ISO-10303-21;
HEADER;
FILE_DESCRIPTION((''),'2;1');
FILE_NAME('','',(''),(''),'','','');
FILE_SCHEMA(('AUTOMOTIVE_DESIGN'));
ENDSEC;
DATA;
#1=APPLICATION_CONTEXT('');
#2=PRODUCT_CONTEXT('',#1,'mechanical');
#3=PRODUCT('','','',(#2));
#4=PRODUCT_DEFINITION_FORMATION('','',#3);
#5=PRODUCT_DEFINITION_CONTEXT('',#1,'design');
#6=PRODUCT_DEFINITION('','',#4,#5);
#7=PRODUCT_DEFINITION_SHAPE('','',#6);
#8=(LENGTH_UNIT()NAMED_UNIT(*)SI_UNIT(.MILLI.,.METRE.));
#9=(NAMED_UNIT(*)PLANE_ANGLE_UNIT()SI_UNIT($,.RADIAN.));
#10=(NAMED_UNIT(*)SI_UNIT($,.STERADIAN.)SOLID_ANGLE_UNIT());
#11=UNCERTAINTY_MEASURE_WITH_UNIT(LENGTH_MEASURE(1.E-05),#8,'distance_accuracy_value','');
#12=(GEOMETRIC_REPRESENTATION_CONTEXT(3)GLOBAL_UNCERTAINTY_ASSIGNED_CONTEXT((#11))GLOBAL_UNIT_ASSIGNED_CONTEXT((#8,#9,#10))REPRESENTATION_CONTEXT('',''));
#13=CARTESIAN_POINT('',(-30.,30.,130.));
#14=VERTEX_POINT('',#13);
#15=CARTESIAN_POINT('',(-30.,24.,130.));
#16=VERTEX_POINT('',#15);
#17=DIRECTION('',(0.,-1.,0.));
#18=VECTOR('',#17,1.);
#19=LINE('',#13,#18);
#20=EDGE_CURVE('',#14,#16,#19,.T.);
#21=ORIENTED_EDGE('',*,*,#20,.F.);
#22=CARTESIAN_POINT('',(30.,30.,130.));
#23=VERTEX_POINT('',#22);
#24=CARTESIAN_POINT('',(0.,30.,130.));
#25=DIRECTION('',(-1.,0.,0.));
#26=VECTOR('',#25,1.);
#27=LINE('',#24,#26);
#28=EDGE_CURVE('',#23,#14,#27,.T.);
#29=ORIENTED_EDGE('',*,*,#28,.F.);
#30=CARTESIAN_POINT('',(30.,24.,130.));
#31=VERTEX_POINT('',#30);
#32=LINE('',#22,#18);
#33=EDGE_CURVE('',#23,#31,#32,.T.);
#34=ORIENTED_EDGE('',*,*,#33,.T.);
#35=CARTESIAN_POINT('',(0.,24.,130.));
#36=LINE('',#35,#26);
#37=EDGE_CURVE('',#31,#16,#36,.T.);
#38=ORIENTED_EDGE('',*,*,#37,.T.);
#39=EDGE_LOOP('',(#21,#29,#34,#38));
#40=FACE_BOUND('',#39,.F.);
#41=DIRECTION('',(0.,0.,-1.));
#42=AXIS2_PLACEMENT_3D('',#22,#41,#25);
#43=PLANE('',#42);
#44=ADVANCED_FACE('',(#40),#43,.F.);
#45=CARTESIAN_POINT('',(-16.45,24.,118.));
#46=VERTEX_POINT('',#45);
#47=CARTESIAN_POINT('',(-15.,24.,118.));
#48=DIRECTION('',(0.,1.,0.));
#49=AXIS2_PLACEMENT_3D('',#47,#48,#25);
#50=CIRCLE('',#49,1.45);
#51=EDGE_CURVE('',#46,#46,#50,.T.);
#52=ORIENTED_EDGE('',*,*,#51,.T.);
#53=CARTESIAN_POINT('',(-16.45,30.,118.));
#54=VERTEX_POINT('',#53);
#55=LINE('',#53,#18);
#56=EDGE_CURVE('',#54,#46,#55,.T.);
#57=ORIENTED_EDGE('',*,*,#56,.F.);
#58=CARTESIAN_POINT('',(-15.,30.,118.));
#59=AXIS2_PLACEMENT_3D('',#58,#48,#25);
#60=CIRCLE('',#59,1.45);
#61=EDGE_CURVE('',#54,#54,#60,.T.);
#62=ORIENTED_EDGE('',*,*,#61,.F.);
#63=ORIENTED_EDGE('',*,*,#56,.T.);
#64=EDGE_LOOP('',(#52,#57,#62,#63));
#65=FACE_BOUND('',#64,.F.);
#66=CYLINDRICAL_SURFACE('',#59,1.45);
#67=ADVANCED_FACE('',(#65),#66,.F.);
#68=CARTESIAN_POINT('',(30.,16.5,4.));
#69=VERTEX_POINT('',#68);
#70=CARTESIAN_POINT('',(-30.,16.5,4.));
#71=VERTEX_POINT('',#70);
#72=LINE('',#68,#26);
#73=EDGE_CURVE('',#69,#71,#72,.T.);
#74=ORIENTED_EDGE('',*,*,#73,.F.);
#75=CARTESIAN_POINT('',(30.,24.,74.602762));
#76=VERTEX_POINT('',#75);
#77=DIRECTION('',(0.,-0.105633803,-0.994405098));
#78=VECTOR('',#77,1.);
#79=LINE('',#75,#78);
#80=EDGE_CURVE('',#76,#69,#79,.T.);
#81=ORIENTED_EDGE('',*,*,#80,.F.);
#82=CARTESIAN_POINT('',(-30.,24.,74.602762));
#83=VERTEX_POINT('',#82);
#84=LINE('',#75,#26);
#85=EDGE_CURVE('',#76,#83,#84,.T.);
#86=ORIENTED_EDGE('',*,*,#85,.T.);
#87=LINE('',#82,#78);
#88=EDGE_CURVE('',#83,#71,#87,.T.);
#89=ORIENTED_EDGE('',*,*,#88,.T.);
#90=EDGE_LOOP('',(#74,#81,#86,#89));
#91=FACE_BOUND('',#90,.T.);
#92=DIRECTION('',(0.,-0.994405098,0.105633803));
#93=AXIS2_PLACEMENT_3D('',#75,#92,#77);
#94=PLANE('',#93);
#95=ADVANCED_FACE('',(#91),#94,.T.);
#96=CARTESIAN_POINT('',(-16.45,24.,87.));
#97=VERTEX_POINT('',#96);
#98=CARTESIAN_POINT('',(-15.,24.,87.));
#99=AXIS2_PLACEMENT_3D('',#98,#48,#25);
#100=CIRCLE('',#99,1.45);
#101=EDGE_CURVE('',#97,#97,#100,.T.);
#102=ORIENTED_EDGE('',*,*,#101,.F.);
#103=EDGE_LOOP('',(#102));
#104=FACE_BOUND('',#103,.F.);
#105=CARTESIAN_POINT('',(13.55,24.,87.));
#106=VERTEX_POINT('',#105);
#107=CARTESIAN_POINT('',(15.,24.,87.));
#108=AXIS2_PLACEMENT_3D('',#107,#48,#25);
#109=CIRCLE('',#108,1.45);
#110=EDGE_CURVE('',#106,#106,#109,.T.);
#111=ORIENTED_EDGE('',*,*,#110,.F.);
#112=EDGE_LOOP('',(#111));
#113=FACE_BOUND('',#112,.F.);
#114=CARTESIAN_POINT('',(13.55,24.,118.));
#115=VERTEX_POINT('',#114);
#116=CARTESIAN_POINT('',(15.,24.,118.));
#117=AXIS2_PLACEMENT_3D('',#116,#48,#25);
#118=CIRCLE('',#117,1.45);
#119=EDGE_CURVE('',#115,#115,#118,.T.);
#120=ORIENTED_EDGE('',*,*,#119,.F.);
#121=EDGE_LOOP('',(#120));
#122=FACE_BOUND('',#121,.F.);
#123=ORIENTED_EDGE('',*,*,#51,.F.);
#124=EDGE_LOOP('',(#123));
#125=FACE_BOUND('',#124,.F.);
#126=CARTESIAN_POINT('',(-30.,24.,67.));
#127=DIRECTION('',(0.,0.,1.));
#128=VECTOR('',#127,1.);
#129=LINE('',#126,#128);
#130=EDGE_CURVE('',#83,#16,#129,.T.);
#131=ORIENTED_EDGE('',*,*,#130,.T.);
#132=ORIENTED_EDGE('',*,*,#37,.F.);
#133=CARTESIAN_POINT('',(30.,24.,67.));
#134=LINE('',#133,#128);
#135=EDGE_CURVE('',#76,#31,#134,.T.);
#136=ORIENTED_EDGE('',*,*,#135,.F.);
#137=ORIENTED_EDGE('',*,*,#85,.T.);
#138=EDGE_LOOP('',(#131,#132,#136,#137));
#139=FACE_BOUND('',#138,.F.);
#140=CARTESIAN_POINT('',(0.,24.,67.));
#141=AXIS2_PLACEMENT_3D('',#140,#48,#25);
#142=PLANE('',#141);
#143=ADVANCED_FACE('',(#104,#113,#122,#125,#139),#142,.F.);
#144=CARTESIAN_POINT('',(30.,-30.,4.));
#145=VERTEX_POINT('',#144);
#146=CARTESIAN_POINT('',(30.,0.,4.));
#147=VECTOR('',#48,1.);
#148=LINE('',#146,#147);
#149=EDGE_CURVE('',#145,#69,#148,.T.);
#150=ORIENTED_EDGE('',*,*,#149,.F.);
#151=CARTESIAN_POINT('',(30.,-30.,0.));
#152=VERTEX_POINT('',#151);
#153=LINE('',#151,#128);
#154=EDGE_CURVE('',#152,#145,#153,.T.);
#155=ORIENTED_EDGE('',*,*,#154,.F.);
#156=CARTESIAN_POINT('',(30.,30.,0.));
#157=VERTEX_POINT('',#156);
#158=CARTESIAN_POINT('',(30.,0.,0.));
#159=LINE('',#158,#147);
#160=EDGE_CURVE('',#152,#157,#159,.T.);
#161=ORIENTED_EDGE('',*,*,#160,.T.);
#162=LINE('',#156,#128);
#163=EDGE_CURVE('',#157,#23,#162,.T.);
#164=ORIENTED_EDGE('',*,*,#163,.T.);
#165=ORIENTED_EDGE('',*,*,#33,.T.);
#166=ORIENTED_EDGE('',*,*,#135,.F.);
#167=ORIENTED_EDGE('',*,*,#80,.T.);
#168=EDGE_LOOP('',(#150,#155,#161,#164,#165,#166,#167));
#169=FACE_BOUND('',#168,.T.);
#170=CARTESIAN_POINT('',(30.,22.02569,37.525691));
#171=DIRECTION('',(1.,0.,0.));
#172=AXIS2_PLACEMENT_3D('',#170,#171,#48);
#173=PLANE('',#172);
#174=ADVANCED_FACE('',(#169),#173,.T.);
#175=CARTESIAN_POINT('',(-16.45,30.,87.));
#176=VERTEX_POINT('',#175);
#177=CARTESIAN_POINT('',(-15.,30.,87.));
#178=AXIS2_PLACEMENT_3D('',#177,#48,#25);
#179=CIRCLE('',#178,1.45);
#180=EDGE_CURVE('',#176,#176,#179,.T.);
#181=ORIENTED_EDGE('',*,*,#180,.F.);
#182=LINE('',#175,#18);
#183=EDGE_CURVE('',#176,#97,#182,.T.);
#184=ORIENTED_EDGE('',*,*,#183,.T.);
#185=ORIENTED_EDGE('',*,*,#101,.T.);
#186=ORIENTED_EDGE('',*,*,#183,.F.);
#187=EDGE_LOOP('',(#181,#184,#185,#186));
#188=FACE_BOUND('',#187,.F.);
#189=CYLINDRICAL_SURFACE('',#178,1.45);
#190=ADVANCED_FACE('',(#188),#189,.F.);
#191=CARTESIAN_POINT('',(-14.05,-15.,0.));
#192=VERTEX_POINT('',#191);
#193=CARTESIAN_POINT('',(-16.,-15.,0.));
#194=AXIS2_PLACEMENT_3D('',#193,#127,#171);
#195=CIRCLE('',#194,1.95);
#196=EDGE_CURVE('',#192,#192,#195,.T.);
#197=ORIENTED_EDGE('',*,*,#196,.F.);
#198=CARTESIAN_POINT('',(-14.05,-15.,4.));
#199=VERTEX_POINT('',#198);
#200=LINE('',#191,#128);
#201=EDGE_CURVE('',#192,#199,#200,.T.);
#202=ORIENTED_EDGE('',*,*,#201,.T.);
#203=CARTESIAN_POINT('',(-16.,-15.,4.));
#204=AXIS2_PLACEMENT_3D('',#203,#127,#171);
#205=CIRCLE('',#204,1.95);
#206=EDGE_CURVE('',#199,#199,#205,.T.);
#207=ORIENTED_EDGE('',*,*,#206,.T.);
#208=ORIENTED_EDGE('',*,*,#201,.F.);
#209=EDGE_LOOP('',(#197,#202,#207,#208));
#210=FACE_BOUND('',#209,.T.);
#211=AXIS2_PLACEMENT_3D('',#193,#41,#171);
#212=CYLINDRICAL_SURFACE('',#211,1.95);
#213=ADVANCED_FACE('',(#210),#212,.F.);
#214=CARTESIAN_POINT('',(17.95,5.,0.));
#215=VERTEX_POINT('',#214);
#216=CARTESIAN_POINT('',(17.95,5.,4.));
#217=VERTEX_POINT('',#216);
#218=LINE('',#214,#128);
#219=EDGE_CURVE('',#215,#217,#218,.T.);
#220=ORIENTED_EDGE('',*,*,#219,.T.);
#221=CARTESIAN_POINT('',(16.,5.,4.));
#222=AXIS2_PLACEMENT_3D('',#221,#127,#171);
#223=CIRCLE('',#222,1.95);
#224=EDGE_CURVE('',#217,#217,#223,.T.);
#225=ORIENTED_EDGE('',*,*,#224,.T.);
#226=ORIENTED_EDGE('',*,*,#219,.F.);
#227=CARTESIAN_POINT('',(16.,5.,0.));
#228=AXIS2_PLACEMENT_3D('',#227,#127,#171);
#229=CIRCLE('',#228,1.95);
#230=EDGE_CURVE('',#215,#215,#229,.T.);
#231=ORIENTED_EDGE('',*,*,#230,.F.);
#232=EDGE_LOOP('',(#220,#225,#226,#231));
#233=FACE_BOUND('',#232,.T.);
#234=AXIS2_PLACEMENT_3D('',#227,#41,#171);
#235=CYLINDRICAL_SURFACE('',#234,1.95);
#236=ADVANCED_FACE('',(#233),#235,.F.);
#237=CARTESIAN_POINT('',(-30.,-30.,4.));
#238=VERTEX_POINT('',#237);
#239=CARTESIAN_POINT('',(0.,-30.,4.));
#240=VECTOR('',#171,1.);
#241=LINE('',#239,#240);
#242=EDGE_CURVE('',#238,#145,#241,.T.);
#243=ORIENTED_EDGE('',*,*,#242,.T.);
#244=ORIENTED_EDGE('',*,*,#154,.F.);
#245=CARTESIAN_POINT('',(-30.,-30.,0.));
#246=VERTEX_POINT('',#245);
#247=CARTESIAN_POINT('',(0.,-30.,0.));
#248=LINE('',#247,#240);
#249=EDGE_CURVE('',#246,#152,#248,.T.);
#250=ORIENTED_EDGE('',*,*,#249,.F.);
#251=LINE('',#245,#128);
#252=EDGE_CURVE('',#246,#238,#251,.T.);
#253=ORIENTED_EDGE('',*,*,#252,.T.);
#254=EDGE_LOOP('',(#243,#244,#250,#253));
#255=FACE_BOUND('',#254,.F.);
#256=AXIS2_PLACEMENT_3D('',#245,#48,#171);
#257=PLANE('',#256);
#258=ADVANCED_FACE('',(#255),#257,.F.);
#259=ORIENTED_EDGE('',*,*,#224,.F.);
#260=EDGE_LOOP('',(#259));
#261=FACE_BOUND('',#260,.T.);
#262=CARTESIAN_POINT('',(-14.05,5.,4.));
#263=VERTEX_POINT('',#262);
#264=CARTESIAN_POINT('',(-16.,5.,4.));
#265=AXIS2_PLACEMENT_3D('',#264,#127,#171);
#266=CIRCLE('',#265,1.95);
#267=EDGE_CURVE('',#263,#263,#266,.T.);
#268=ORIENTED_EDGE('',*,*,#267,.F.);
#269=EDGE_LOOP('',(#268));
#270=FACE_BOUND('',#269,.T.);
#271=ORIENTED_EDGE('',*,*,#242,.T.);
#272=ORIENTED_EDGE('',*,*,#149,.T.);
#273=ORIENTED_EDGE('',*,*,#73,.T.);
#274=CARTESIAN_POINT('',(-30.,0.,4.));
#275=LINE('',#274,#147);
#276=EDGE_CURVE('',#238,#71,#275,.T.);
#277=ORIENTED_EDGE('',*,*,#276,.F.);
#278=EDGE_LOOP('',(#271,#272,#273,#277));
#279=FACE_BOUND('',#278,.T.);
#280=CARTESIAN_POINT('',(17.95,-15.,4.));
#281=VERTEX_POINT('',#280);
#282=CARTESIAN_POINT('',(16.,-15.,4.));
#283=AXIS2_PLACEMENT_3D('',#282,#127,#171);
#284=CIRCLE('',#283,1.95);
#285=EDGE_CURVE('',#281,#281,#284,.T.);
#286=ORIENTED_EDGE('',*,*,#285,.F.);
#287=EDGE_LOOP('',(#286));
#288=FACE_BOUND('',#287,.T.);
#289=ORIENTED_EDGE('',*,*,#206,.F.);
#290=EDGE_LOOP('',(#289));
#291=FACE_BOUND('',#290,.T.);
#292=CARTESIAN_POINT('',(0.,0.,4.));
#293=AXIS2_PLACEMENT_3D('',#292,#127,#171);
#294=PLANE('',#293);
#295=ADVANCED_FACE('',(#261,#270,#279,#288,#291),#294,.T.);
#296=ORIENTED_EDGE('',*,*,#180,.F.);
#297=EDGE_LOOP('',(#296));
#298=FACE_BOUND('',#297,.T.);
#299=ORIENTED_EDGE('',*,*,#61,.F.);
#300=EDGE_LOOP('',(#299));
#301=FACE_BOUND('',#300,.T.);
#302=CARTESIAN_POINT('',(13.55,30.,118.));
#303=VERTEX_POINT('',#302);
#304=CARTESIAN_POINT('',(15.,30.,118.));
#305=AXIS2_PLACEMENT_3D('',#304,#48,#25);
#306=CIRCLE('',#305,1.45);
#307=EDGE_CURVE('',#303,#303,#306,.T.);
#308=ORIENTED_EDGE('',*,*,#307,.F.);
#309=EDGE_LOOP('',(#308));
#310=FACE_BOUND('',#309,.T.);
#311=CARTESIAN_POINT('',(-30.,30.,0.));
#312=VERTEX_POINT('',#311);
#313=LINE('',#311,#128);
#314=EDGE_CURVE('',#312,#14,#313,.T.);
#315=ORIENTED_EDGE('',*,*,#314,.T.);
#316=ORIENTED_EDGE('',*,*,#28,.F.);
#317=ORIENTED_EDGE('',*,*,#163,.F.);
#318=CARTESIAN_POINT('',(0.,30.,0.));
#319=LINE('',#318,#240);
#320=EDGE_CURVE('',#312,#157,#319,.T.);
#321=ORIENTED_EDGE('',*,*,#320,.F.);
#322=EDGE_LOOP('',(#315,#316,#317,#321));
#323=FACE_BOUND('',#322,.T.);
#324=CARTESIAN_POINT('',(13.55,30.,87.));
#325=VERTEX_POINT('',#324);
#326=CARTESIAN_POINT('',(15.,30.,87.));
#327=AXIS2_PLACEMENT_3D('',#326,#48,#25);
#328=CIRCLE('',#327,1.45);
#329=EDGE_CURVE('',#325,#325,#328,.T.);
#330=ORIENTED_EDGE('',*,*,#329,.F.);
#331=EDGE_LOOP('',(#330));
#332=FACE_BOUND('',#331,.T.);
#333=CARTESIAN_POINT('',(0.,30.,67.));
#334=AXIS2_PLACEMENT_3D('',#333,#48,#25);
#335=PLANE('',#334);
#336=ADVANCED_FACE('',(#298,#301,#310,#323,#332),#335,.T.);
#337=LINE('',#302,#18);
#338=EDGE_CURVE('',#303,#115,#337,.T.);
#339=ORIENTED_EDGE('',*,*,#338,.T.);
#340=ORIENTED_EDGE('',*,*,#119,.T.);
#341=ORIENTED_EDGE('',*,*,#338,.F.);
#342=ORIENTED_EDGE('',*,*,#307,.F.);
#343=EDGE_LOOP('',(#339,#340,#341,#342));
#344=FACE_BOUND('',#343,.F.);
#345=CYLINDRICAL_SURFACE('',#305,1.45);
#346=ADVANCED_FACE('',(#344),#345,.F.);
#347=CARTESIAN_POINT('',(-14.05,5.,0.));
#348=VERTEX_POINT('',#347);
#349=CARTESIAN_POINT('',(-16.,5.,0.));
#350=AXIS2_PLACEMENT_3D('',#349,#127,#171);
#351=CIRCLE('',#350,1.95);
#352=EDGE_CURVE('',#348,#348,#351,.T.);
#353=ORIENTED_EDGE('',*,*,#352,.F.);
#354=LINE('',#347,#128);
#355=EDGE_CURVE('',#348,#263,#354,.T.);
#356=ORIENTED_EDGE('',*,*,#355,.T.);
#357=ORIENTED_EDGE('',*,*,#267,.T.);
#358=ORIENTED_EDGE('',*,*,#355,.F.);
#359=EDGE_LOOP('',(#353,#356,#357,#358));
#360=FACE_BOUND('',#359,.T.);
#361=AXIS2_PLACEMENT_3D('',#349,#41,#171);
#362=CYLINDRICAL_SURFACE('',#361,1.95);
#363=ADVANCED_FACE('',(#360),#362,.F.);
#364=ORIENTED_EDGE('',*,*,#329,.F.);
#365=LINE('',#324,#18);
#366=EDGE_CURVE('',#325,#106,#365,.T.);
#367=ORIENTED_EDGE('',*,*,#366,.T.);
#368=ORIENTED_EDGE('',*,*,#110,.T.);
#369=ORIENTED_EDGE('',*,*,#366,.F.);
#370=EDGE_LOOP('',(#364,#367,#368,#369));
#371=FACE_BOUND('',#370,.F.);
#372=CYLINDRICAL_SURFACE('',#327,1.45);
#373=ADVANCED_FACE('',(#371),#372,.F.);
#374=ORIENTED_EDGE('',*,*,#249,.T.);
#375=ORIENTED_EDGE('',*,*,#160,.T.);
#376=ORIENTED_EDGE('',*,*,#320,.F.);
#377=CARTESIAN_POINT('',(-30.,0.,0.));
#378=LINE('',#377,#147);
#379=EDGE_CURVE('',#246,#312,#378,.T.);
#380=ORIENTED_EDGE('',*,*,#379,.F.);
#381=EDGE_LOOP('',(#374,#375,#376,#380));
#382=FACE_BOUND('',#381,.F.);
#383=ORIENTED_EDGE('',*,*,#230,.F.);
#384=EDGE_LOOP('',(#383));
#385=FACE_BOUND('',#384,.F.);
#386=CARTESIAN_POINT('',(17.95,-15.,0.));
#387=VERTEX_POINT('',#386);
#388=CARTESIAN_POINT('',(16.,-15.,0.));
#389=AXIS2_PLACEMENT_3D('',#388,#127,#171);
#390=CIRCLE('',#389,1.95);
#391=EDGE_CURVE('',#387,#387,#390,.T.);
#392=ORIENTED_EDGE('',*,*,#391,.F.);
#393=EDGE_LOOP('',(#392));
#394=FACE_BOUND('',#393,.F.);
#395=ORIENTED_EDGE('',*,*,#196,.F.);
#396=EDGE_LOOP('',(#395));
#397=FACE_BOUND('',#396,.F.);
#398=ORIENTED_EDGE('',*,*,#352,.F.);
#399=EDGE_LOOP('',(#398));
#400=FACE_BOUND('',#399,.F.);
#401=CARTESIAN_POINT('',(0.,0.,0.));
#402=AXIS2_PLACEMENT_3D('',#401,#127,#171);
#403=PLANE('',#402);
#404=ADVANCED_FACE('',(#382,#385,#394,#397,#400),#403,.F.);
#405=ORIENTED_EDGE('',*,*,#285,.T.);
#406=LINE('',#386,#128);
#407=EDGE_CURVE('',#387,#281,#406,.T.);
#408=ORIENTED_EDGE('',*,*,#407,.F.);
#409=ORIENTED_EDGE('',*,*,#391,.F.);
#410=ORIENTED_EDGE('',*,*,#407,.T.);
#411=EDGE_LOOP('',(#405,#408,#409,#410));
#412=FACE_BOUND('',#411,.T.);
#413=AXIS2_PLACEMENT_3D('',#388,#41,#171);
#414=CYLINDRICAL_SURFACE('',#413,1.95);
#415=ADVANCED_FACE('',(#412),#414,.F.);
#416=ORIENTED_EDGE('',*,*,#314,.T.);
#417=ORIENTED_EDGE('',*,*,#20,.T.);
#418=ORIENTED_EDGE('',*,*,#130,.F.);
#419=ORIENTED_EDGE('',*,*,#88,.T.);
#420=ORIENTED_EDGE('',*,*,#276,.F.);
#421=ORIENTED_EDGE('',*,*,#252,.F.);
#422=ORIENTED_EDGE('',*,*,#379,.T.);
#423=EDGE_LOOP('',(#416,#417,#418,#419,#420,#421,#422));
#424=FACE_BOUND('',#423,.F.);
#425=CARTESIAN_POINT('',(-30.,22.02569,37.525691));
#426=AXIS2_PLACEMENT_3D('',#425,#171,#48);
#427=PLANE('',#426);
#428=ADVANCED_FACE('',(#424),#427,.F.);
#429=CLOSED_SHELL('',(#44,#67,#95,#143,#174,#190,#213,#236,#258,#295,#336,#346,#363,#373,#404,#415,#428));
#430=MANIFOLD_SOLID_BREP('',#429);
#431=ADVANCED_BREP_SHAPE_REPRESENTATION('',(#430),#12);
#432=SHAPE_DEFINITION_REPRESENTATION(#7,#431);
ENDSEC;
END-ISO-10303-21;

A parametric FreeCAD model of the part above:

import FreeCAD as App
import Part
import Sketcher

V = App.Vector


def add_polygon(sketch, points):
    """Adds a closed chain of lines whose ends are joined by coincident constraints."""
    first, n = sketch.GeometryCount, len(points)
    for a, b in zip(points, points[1:] + points[:1]):
        sketch.addGeometry(Part.LineSegment(App.Vector(*a, 0), App.Vector(*b, 0)), False)
    for i in range(n):
        sketch.addConstraint(Sketcher.Constraint("Coincident", first + i, 2, first + (i + 1) % n, 1))

doc = App.newDocument("Part")
body = doc.addObject("PartDesign::Body", "Body")

sketch1 = body.newObject("Sketcher::SketchObject", "Sketch")
sketch1.AttachmentSupport = (doc.getObject("XY_Plane"), [""])
sketch1.MapMode = "FlatFace"
add_polygon(sketch1, [(-30, 30), (-30, -30), (30, -30), (30, 30)])
sketch1.addGeometry(Part.Circle(V(-16, -15, 0), V(0, 0, 1), 1.9), False)
sketch1.addGeometry(Part.Circle(V(16, -15, 0), V(0, 0, 1), 1.9), False)
sketch1.addGeometry(Part.Circle(V(-16, 5, 0), V(0, 0, 1), 1.9), False)
sketch1.addGeometry(Part.Circle(V(16, 5, 0), V(0, 0, 1), 1.9), False)
sketch1.addConstraint(Sketcher.Constraint("Vertical", 0))
sketch1.addConstraint(Sketcher.Constraint("Horizontal", 1))
sketch1.addConstraint(Sketcher.Constraint("Vertical", 2))
sketch1.addConstraint(Sketcher.Constraint("Horizontal", 3))
sketch1.addConstraint(Sketcher.Constraint("Equal", 4, 5))
sketch1.addConstraint(Sketcher.Constraint("Equal", 5, 6))
sketch1.addConstraint(Sketcher.Constraint("Equal", 6, 7))
sketch1.addConstraint(Sketcher.Constraint("Symmetric", 0, 2, 2, 2, -1, 1))
sketch1.addConstraint(Sketcher.Constraint("Symmetric", 4, 3, 5, 3, -2))
sketch1.addConstraint(Sketcher.Constraint("Symmetric", 6, 3, 7, 3, -2))
sketch1.addConstraint(Sketcher.Constraint("Vertical", 4, 3, 6, 3))
sketch1.addConstraint(Sketcher.Constraint("Equal", 3, 0))
sketch1.addConstraint(Sketcher.Constraint("Diameter", 4, 3.9))
sketch1.addConstraint(Sketcher.Constraint("DistanceX", 1, 1, 1, 2, 60.0))
sketch1.addConstraint(Sketcher.Constraint("DistanceX", 4, 3, -1, 1, 16.0))
sketch1.addConstraint(Sketcher.Constraint("DistanceY", 4, 3, -1, 1, 15.0))
sketch1.addConstraint(Sketcher.Constraint("DistanceY", -1, 1, 6, 3, 5.0))
pad1 = body.newObject("PartDesign::Pad", "Pad")
pad1.Profile = sketch1
pad1.Length = 4

sketch2 = body.newObject("Sketcher::SketchObject", "Sketch001")
sketch2.AttachmentSupport = (doc.getObject("XZ_Plane"), [""])
sketch2.MapMode = "FlatFace"
sketch2.AttachmentOffset = App.Placement(V(0, 0, -30), App.Rotation())
add_polygon(sketch2, [(30, 130), (30, 4), (-30, 4), (-30, 130)])
sketch2.addGeometry(Part.Circle(V(15, 87, 0), V(0, 0, 1), 1.4), False)
sketch2.addGeometry(Part.Circle(V(-15, 87, 0), V(0, 0, 1), 1.4), False)
sketch2.addGeometry(Part.Circle(V(15, 118, 0), V(0, 0, 1), 1.4), False)
sketch2.addGeometry(Part.Circle(V(-15, 118, 0), V(0, 0, 1), 1.4), False)
sketch2.addConstraint(Sketcher.Constraint("Vertical", 0))
sketch2.addConstraint(Sketcher.Constraint("Horizontal", 1))
sketch2.addConstraint(Sketcher.Constraint("Vertical", 2))
sketch2.addConstraint(Sketcher.Constraint("Horizontal", 3))
sketch2.addConstraint(Sketcher.Constraint("Equal", 4, 5))
sketch2.addConstraint(Sketcher.Constraint("Equal", 5, 6))
sketch2.addConstraint(Sketcher.Constraint("Equal", 6, 7))
sketch2.addConstraint(Sketcher.Constraint("Symmetric", 4, 3, 5, 3, -2))
sketch2.addConstraint(Sketcher.Constraint("Symmetric", 6, 3, 7, 3, -2))
sketch2.addConstraint(Sketcher.Constraint("Vertical", 4, 3, 6, 3))
sketch2.addConstraint(Sketcher.Constraint("Diameter", 4, 2.9))
sketch2.addConstraint(Sketcher.Constraint("DistanceX", 1, 2, 1, 1, 60.0))
sketch2.addConstraint(Sketcher.Constraint("DistanceY", 0, 2, 0, 1, 126.0))
sketch2.addConstraint(Sketcher.Constraint("DistanceX", -1, 1, 4, 3, 15.0))
sketch2.addConstraint(Sketcher.Constraint("DistanceY", -1, 1, 4, 3, 87.0))
sketch2.addConstraint(Sketcher.Constraint("DistanceY", -1, 1, 6, 3, 118.0))
sketch2.addConstraint(Sketcher.Constraint("DistanceX", -1, 1, 0, 2, 30.0))
sketch2.addConstraint(Sketcher.Constraint("DistanceY", -1, 1, 0, 2, 4.0))
pad2 = body.newObject("PartDesign::Pad", "Pad001")
pad2.Profile = sketch2
pad2.Length = 6

sketch3 = body.newObject("Sketcher::SketchObject", "Sketch002")
sketch3.AttachmentSupport = (doc.getObject("YZ_Plane"), [""])
sketch3.MapMode = "FlatFace"
sketch3.AttachmentOffset = App.Placement(V(0, 0, 30), App.Rotation())
add_polygon(sketch3, [(24, 75), (16, 4), (24, 4)])
sketch3.addConstraint(Sketcher.Constraint("Horizontal", 1))
sketch3.addConstraint(Sketcher.Constraint("Vertical", 2))
sketch3.addConstraint(Sketcher.Constraint("Distance", 0, 71.0))
sketch3.addConstraint(Sketcher.Constraint("DistanceX", 1, 1, 1, 2, 7.5))
sketch3.addConstraint(Sketcher.Constraint("DistanceY", -1, 1, 0, 2, 4.0))
sketch3.addConstraint(Sketcher.Constraint("DistanceX", -1, 1, 1, 2, 24.0))
pad3 = body.newObject("PartDesign::Pad", "Pad002")
pad3.Profile = sketch3
pad3.Length = 60
pad3.Reversed = True

doc.recompute()
